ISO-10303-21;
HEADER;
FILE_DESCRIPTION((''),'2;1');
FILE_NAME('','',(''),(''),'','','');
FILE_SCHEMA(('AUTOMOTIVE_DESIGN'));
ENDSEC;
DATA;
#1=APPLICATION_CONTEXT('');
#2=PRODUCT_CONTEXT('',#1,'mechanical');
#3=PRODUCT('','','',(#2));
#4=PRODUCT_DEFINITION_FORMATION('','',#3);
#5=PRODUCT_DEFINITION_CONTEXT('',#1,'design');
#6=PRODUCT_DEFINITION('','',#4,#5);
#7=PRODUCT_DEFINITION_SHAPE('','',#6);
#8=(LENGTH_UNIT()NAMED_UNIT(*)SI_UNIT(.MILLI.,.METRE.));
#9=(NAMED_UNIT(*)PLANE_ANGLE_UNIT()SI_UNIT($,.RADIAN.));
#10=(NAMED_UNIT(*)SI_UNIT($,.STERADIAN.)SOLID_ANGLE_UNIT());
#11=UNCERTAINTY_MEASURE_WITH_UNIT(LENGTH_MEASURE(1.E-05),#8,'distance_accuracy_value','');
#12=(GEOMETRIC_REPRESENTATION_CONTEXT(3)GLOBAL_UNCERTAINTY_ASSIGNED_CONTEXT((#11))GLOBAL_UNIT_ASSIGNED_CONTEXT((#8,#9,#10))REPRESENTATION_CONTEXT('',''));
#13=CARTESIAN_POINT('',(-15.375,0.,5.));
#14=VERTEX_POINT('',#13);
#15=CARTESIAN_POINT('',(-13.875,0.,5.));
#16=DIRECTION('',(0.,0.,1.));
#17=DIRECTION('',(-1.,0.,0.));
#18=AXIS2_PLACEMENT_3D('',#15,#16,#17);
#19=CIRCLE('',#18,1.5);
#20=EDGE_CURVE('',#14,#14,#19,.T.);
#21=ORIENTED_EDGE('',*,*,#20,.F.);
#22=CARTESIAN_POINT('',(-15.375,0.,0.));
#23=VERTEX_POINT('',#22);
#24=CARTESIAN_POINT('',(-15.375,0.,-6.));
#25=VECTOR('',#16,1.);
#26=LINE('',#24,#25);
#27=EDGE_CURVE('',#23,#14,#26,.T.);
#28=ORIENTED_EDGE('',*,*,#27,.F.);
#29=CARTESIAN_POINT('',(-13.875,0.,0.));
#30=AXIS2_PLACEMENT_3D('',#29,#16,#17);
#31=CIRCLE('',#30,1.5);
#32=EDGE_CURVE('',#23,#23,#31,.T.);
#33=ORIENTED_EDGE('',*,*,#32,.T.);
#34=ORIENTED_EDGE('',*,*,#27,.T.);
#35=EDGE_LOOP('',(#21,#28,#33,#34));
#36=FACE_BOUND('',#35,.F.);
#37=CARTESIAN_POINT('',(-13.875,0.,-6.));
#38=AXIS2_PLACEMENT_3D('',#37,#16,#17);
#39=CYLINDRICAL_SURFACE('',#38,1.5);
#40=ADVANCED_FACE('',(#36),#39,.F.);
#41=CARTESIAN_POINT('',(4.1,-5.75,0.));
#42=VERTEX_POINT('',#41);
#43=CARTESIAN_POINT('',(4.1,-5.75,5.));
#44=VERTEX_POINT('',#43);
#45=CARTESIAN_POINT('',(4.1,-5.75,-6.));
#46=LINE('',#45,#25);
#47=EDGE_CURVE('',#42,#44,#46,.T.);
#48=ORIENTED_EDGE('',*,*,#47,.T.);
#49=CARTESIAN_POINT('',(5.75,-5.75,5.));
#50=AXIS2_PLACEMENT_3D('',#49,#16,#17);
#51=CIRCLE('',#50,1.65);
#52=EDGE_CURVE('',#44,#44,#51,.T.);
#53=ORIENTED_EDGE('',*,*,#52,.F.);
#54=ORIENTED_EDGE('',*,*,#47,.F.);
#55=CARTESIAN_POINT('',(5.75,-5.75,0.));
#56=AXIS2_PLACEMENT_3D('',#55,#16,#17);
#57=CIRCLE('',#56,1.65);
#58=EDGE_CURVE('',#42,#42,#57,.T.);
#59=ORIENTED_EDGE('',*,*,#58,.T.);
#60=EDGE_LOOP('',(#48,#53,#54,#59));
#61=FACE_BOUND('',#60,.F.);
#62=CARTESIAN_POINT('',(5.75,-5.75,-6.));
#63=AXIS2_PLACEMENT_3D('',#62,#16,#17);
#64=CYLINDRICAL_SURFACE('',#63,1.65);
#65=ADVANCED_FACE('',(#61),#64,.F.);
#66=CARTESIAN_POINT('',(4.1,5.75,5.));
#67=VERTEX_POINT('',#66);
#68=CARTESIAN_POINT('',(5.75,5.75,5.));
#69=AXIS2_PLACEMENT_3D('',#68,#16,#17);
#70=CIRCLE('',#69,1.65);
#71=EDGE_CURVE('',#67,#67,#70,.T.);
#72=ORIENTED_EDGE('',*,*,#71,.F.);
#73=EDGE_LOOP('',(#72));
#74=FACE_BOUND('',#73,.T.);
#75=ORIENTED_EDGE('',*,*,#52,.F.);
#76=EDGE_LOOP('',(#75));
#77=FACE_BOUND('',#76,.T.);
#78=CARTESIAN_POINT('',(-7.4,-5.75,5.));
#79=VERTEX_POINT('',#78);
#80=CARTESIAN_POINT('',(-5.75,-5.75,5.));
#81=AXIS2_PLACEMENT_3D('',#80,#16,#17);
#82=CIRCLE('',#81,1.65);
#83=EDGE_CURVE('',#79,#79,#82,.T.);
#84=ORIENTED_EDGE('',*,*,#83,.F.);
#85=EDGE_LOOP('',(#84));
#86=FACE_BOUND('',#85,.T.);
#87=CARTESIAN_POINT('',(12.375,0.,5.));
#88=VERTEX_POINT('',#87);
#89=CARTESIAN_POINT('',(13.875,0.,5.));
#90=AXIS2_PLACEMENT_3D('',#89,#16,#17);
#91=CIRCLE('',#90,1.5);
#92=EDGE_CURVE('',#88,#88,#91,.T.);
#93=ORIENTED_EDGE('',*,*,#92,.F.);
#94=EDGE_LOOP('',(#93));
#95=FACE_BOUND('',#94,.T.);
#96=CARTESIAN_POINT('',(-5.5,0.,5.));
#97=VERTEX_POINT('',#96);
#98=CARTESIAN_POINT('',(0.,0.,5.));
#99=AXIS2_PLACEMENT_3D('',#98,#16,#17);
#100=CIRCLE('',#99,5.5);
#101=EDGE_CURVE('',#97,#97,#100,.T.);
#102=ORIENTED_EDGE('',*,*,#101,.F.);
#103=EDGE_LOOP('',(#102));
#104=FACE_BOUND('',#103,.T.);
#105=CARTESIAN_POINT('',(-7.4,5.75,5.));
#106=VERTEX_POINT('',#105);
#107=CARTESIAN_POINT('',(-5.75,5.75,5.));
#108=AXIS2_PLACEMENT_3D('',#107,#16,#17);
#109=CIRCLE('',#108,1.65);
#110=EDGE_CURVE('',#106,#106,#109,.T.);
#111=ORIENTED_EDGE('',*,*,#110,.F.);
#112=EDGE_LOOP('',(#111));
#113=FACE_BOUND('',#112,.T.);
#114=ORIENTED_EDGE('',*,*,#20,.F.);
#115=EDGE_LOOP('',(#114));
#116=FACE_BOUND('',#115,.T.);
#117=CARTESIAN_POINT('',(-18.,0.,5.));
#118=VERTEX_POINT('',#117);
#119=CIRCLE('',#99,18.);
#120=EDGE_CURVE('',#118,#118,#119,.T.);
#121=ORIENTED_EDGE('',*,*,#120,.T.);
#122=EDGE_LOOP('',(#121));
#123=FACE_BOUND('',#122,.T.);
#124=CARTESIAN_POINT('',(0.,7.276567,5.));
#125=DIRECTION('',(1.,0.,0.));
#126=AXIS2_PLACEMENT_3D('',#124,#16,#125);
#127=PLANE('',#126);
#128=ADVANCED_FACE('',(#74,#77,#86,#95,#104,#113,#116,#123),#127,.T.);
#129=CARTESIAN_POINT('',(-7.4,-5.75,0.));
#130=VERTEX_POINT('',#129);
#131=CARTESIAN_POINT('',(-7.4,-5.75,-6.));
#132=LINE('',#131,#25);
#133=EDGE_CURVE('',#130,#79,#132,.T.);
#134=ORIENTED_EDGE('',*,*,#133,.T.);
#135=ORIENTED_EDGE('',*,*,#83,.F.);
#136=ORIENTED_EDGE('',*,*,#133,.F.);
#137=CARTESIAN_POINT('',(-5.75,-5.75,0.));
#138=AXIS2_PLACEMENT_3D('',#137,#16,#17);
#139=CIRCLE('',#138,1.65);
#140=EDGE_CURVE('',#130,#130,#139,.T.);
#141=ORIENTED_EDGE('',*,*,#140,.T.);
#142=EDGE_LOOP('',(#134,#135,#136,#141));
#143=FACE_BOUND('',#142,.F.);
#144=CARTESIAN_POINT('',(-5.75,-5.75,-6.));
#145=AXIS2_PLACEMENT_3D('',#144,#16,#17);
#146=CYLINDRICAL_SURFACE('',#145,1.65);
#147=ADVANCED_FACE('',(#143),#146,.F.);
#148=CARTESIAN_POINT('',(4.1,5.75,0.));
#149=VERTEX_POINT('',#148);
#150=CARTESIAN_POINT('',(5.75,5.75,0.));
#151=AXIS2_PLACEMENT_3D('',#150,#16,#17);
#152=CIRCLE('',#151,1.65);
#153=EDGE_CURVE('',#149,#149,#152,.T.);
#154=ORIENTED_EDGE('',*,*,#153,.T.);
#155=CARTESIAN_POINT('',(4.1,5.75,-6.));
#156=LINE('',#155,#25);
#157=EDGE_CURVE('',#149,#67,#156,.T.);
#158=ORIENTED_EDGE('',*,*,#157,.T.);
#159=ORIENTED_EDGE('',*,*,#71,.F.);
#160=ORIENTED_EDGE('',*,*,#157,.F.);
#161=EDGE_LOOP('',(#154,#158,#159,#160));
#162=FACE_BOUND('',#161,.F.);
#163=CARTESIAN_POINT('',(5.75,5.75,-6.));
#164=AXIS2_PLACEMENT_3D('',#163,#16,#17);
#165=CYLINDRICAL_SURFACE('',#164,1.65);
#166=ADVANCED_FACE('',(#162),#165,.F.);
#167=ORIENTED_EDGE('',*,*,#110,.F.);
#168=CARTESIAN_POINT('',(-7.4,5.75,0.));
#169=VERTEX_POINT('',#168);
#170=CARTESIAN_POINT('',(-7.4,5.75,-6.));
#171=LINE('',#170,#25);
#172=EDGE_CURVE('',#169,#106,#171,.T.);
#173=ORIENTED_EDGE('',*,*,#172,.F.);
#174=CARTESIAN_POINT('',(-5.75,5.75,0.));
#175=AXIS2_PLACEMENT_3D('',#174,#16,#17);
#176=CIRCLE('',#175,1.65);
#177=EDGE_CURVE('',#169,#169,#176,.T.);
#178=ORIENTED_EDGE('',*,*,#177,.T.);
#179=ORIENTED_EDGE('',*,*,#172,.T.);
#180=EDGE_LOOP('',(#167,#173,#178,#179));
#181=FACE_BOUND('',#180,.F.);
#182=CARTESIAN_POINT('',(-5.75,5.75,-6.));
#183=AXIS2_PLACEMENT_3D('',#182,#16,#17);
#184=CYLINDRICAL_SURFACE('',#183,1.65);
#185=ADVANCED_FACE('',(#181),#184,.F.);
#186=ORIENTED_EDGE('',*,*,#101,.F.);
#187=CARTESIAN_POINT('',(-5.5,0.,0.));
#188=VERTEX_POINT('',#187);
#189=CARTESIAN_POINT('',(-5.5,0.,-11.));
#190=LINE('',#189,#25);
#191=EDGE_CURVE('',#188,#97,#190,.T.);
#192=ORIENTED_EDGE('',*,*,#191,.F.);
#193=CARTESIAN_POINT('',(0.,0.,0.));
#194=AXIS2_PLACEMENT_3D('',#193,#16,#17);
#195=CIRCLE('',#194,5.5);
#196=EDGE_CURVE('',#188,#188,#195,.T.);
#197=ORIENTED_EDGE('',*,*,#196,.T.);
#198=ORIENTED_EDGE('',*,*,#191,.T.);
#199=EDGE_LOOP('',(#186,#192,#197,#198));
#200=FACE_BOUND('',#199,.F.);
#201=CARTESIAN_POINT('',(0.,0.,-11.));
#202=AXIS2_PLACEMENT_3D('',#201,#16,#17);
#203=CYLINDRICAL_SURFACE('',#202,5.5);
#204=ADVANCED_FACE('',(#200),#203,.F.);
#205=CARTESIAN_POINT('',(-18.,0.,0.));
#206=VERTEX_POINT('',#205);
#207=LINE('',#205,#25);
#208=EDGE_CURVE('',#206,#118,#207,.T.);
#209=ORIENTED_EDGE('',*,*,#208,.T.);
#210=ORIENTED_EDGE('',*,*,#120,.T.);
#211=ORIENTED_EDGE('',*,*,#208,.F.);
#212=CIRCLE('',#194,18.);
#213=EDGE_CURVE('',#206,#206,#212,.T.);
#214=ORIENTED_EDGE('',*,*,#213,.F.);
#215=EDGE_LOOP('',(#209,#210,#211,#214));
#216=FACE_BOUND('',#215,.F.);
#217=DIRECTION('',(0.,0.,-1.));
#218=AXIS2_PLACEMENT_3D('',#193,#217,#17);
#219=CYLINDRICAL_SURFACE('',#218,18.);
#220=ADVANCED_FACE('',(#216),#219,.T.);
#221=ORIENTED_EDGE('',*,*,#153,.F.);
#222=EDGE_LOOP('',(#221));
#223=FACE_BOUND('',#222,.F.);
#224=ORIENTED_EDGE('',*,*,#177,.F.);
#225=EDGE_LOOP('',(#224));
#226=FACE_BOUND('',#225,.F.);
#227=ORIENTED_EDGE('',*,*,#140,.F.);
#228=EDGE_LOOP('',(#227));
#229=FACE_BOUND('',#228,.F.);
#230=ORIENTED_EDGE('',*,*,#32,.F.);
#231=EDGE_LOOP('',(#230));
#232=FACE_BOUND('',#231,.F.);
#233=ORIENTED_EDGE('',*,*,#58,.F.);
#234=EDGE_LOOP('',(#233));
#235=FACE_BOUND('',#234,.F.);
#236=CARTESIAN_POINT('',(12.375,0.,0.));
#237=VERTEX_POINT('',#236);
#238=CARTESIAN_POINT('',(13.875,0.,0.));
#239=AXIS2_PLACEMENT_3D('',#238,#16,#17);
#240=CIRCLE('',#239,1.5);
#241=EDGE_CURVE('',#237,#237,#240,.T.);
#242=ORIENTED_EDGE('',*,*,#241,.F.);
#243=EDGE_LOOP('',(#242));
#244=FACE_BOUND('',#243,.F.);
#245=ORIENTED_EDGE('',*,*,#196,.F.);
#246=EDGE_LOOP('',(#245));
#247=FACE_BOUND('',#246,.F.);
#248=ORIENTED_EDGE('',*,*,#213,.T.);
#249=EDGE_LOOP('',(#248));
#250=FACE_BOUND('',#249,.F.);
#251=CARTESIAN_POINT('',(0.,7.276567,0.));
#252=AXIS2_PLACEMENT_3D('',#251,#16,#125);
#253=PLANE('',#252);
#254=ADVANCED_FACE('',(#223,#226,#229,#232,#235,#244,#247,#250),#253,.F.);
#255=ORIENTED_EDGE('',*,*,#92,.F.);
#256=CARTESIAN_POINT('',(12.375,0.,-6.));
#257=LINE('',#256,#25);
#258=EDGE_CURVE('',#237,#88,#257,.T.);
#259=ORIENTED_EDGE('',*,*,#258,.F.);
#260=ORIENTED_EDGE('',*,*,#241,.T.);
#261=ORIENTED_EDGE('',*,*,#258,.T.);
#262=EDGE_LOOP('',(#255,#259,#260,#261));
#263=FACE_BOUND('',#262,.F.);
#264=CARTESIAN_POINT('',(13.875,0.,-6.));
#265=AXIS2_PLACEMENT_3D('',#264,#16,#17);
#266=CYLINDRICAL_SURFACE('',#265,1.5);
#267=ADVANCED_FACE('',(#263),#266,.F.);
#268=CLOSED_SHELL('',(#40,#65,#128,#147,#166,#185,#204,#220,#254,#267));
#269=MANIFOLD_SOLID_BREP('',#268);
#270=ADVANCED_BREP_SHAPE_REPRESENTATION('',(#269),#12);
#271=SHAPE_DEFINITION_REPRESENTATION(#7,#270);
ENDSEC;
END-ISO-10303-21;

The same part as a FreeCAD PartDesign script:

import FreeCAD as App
import Part
import Sketcher

V = App.Vector

doc = App.newDocument("Part")
body = doc.addObject("PartDesign::Body", "Body")

sketch1 = doc.addObject("Sketcher::SketchObject", "Sketch")
body.addObject(sketch1)
sketch1.AttachmentSupport = (doc.XY_Plane, [""])
sketch1.MapMode = "FlatFace"
sketch1.addGeometry(Part.Circle(V(0, 0, 0), V(0, 0, 1), 18), False)
sketch1.addConstraint([
    Sketcher.Constraint("Coincident", 0, 3, -1, 1),
    Sketcher.Constraint("Diameter", 0, 36.0),
])
pad1 = doc.addObject("PartDesign::Pad", "Pad")
body.addObject(pad1)
pad1.Profile = sketch1
pad1.Length = 5

sketch2 = doc.addObject("Sketcher::SketchObject", "Sketch001")
body.addObject(sketch2)
sketch2.AttachmentSupport = (doc.XY_Plane, [""])
sketch2.MapMode = "FlatFace"
sketch2.addGeometry([
    Part.Circle(V(13.9, 0, 0), V(0, 0, 1), 1.5),
    Part.Circle(V(-13.9, 0, 0), V(0, 0, 1), 1.5),
], False)
sketch2.addConstraint([
    Sketcher.Constraint("Equal", 0, 1),
    Sketcher.Constraint("Symmetric", 0, 3, 1, 3, -1, 1),
    Sketcher.Constraint("PointOnObject", 0, 3, -1),
    Sketcher.Constraint("Diameter", 0, 3.0),
    Sketcher.Constraint("DistanceX", 1, 3, 0, 3, 27.75),
])
doc.recompute()
hole = doc.addObject("PartDesign::Hole", "Hole")
body.addObject(hole)
hole.Profile = sketch2
hole.ThreadType = "None"
hole.Diameter = 3
hole.DepthType = "Dimension"
hole.Depth = 6
hole.DrillPoint = "Angled"
hole.DrillPointAngle = 118
hole.Reversed = True

sketch3 = doc.addObject("Sketcher::SketchObject", "Sketch002")
body.addObject(sketch3)
sketch3.AttachmentSupport = (doc.XY_Plane, [""])
sketch3.MapMode = "FlatFace"
sketch3.addGeometry([
    Part.Circle(V(5.8, 5.8, 0), V(0, 0, 1), 1.6),
    Part.Circle(V(5.8, -5.8, 0), V(0, 0, 1), 1.6),
    Part.Circle(V(-5.8, -5.8, 0), V(0, 0, 1), 1.6),
    Part.Circle(V(-5.8, 5.8, 0), V(0, 0, 1), 1.6),
], False)
sketch3.addConstraint([
    Sketcher.Constraint("Equal", 0, 1),
    Sketcher.Constraint("Equal", 1, 2),
    Sketcher.Constraint("Equal", 2, 3),
    Sketcher.Constraint("Symmetric", 0, 3, 2, 3, -1, 1),
    Sketcher.Constraint("Symmetric", 1, 3, 3, 3, -1, 1),
    Sketcher.Constraint("Symmetric", 1, 3, 2, 3, -2),
    Sketcher.Constraint("Diameter", 0, 3.3),
    Sketcher.Constraint("DistanceY", 1, 3, 0, 3, 11.5),
    Sketcher.Constraint("DistanceX", 2, 3, 1, 3, 11.5),
])
doc.recompute()
hole2 = doc.addObject("PartDesign::Hole", "Hole001")
body.addObject(hole2)
hole2.Profile = sketch3
hole2.ThreadType = "None"
hole2.Diameter = 3.3
hole2.DepthType = "Dimension"
hole2.Depth = 6
hole2.DrillPoint = "Angled"
hole2.DrillPointAngle = 118
hole2.Reversed = True

sketch4 = doc.addObject("Sketcher::SketchObject", "Sketch003")
body.addObject(sketch4)
sketch4.AttachmentSupport = (doc.XY_Plane, [""])
sketch4.MapMode = "FlatFace"
sketch4.addGeometry(Part.Circle(V(0, 0, 0), V(0, 0, 1), 6), False)
sketch4.addConstraint([
    Sketcher.Constraint("Coincident", 0, 3, -1, 1),
    Sketcher.Constraint("Diameter", 0, 11.0),
])
doc.recompute()
hole3 = doc.addObject("PartDesign::Hole", "Hole002")
body.addObject(hole3)
hole3.Profile = sketch4
hole3.ThreadType = "None"
hole3.Diameter = 11
hole3.DepthType = "Dimension"
hole3.Depth = 11
hole3.DrillPoint = "Angled"
hole3.DrillPointAngle = 118
hole3.Reversed = True

doc.recompute()
